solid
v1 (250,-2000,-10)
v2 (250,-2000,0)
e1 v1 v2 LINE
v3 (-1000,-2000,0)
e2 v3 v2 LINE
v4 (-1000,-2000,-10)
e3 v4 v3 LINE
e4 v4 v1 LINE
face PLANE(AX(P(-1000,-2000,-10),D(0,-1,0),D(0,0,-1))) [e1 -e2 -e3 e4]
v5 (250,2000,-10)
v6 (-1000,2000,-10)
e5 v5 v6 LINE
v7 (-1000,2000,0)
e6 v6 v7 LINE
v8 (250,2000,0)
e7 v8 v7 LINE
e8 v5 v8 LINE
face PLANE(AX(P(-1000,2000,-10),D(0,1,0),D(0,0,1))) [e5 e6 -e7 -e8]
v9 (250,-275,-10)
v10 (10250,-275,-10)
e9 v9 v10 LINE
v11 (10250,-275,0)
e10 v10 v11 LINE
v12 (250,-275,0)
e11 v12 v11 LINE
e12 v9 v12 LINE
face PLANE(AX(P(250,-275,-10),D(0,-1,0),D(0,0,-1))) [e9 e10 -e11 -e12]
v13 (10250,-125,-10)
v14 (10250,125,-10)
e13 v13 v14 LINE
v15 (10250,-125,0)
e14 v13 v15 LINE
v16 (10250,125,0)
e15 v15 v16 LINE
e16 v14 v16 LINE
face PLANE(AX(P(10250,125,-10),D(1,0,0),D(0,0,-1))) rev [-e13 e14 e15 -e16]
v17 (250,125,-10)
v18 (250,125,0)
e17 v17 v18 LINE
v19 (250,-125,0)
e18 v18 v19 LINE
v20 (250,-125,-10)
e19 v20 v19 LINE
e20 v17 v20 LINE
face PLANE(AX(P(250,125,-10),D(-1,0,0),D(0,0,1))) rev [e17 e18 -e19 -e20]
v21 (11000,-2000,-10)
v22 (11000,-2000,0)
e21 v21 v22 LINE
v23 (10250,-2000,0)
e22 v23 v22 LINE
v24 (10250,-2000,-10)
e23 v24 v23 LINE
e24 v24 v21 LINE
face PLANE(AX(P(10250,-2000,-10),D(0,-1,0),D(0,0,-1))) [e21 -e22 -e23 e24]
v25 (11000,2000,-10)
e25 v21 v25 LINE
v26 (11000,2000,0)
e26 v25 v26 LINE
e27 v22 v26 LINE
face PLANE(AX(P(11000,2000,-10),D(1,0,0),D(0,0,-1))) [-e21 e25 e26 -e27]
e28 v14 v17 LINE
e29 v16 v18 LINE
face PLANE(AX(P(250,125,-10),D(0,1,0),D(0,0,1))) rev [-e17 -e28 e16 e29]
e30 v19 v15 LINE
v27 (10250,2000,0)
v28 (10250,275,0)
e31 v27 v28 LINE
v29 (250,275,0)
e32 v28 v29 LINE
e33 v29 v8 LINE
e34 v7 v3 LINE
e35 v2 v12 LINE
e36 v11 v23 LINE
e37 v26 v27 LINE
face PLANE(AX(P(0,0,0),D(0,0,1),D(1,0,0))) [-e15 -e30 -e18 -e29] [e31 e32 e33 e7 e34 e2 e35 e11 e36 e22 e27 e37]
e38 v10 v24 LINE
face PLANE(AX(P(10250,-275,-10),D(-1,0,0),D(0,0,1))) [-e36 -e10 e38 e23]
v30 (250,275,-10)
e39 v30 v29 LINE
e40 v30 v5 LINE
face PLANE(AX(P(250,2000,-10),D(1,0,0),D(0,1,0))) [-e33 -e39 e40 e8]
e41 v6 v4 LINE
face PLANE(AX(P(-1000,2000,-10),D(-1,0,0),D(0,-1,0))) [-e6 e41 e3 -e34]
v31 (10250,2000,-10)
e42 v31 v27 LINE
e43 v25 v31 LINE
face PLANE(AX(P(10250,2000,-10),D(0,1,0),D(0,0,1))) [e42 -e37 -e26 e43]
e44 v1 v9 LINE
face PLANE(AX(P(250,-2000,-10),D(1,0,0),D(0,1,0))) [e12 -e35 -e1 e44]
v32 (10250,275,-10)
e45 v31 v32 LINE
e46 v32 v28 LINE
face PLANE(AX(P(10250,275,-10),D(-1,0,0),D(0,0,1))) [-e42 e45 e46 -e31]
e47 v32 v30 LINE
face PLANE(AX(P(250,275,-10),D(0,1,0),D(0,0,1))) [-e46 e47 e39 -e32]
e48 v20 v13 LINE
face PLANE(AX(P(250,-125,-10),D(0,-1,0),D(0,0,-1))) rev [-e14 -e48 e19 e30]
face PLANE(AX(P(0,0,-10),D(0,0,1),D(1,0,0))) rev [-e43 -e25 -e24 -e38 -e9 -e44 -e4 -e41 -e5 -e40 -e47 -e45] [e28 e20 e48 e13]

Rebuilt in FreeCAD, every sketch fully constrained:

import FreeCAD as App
import Part
import Sketcher
from FreeCAD import Vector
Q = App.Units.Quantity


def add_polygon(sketch, points):
    """Adds a closed chain of lines whose ends are joined by coincident constraints."""
    first, n = sketch.GeometryCount, len(points)
    for a, b in zip(points, points[1:] + points[:1]):
        sketch.addGeometry(Part.LineSegment(App.Vector(*a, 0), App.Vector(*b, 0)), False)
    for i in range(n):
        sketch.addConstraint(Sketcher.Constraint("Coincident", first + i, 2, first + (i + 1) % n, 1))

doc = App.newDocument("Part")
body = doc.addObject("PartDesign::Body", "Body")

# Sketch on XY plane
sketch1 = doc.addObject("Sketcher::SketchObject", "Sketch")
body.addObject(sketch1)
sketch1.AttachmentSupport = (doc.XY_Plane, [""])
sketch1.MapMode = "FlatFace"
add_polygon(sketch1, [(250, 275), (250, 2000), (-1000, 2000), (-1000, -2000), (250, -2000), (250, -275), (10250, -275), (10250, -2000), (11000, -2000), (11000, 2000), (10250, 2000), (10250, 275)])  # lines 0-11
add_polygon(sketch1, [(250, -125), (250, 125), (10250, 125), (10250, -125)])  # lines 12-15
sketch1.addConstraint([
    Sketcher.Constraint("Vertical", 0),
    Sketcher.Constraint("Horizontal", 1),
    Sketcher.Constraint("Vertical", 2),
    Sketcher.Constraint("Horizontal", 3),
    Sketcher.Constraint("Vertical", 4),
    Sketcher.Constraint("Horizontal", 5),
    Sketcher.Constraint("Vertical", 6),
    Sketcher.Constraint("Horizontal", 7),
    Sketcher.Constraint("Vertical", 8),
    Sketcher.Constraint("Horizontal", 9),
    Sketcher.Constraint("Vertical", 10),
    Sketcher.Constraint("Horizontal", 11),
    Sketcher.Constraint("Vertical", 12),
    Sketcher.Constraint("Horizontal", 13),
    Sketcher.Constraint("Vertical", 14),
    Sketcher.Constraint("Horizontal", 15),
    Sketcher.Constraint("Symmetric", 0, 2, 3, 2, -1),
    Sketcher.Constraint("Symmetric", 6, 2, 9, 2, -1),
    Sketcher.Constraint("Horizontal", 3, 2, 6, 2),
    Sketcher.Constraint("Vertical", 11, 2, 12, 2),
    Sketcher.Constraint("Vertical", 10, 2, 13, 2),
    Sketcher.Constraint("Equal", 0, 4),
    Sketcher.Constraint("DistanceX", 1, 2, 1, 1, Q("1250 mm")),
    Sketcher.Constraint("DistanceX", 5, 1, 5, 2, Q("10000 mm")),
    Sketcher.Constraint("DistanceX", 7, 1, 7, 2, Q("750 mm")),
    Sketcher.Constraint("DistanceY", 0, 1, 0, 2, Q("1725 mm")),
    Sketcher.Constraint("DistanceY", 2, 2, 2, 1, Q("4000 mm")),
    Sketcher.Constraint("DistanceY", 12, 1, 12, 2, Q("250 mm")),
    Sketcher.Constraint("DistanceX", -1, 1, 0, 2, Q("250 mm")),
    Sketcher.Constraint("DistanceY", -1, 1, 12, 2, Q("125 mm")),
])
pad1 = doc.addObject("PartDesign::Pad", "Pad")
body.addObject(pad1)
pad1.Profile = sketch1
pad1.Length = 10
pad1.Reversed = True

doc.recompute()
